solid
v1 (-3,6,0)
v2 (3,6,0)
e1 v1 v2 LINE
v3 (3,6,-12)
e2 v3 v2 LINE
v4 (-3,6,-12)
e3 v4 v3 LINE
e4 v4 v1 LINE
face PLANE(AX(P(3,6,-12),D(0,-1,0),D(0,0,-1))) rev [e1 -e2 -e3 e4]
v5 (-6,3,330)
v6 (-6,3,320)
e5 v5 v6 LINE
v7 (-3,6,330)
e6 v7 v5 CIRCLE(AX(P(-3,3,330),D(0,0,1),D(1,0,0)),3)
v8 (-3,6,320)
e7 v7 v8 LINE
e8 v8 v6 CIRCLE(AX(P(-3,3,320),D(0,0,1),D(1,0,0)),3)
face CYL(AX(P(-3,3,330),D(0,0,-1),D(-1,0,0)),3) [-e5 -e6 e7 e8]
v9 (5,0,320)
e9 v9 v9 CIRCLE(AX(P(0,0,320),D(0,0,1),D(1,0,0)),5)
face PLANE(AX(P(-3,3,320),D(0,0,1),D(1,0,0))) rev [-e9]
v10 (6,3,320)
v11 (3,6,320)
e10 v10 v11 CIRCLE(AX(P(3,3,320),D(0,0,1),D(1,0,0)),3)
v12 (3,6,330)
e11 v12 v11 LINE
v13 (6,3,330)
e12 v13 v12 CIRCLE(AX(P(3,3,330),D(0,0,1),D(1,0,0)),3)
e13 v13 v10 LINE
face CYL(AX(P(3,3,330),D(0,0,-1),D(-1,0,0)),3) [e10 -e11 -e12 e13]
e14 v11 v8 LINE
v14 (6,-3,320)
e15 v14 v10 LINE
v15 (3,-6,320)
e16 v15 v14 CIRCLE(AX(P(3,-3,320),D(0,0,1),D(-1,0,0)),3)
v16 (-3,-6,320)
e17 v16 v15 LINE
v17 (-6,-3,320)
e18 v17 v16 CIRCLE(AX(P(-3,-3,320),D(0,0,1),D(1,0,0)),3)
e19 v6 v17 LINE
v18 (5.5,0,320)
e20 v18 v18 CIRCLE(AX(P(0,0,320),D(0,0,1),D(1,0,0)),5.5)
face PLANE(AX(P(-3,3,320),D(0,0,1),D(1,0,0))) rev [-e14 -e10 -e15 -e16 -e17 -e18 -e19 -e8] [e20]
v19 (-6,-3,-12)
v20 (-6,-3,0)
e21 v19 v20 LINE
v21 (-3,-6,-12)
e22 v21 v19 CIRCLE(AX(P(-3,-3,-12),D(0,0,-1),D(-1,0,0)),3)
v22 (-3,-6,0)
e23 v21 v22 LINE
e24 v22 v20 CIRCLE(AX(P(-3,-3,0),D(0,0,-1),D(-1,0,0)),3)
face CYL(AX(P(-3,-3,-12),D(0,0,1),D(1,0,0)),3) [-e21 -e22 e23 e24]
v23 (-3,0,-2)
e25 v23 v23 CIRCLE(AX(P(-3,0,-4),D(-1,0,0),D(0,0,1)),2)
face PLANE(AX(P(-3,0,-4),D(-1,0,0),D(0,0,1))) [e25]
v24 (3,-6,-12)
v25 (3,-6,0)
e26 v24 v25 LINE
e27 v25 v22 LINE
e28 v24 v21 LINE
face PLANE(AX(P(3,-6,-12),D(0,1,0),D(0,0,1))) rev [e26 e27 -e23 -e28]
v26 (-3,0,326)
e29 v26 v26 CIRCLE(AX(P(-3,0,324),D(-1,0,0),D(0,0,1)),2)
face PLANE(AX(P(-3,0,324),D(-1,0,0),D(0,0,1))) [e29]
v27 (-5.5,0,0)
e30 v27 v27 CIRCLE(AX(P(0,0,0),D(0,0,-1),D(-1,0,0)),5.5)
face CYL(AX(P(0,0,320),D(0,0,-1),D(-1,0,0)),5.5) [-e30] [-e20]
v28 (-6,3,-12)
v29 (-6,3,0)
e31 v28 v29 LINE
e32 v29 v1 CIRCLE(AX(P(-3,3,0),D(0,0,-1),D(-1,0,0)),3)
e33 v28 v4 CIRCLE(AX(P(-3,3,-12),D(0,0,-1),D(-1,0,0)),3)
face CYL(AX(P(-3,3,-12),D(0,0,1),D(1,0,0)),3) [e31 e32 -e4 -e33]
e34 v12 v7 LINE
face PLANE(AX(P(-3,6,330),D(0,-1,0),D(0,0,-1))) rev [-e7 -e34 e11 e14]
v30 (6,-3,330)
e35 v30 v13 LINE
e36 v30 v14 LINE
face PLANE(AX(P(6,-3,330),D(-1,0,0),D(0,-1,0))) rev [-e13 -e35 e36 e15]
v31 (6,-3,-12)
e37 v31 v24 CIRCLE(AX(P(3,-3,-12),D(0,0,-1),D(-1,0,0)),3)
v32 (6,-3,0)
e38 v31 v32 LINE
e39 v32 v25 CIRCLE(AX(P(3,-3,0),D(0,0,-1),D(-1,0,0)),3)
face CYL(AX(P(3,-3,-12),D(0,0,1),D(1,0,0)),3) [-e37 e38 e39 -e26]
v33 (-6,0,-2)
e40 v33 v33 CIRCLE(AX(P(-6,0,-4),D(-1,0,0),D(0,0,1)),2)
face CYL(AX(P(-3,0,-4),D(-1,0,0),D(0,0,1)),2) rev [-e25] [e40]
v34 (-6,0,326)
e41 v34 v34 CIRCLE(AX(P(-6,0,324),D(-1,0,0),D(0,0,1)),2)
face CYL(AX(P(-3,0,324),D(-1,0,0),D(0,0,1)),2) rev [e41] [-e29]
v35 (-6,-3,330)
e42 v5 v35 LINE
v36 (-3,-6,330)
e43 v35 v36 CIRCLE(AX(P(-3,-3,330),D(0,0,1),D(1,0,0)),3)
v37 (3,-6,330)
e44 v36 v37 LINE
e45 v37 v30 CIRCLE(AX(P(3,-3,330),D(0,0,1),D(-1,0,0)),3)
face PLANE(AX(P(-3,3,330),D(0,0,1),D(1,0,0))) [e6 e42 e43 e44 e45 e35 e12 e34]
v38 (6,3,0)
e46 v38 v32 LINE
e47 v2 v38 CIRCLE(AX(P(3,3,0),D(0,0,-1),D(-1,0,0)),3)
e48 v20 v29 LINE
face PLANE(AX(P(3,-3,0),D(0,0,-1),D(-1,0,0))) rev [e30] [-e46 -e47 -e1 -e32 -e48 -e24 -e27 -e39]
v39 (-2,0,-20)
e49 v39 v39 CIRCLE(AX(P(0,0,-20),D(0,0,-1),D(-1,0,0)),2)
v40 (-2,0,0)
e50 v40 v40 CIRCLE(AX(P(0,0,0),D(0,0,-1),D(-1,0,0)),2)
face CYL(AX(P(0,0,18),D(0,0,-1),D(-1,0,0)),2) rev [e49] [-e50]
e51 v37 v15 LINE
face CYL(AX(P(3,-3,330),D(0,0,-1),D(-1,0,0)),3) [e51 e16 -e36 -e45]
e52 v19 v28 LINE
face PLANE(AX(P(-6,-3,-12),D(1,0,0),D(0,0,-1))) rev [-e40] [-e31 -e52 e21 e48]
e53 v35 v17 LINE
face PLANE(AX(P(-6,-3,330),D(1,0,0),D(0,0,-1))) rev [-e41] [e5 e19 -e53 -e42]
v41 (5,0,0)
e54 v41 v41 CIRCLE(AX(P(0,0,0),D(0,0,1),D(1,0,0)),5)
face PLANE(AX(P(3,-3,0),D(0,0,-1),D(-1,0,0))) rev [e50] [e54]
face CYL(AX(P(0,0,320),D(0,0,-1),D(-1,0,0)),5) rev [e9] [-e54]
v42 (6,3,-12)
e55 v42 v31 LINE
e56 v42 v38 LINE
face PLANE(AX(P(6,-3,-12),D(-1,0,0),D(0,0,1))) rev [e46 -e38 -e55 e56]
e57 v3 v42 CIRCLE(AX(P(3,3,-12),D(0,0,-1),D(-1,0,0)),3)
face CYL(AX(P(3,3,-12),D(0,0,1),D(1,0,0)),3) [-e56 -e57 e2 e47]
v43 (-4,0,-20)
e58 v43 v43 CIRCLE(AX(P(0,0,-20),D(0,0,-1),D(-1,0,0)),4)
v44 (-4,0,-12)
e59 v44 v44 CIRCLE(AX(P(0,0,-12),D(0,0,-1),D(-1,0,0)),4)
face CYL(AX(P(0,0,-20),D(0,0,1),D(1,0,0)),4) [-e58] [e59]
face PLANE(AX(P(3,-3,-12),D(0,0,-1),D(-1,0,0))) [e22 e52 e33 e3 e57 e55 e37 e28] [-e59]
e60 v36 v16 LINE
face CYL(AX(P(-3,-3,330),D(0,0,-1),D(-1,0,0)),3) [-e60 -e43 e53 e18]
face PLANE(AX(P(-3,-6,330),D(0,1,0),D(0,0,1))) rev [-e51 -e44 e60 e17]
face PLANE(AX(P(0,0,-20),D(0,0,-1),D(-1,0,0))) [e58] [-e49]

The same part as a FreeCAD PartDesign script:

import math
import FreeCAD as App
import Part
import Sketcher

V = App.Vector
Q = App.Units.Quantity

doc = App.newDocument("Part")
body = doc.addObject("PartDesign::Body", "Body")

# Sketch on XY plane
sketch1 = body.newObject("Sketcher::SketchObject", "Sketch")
sketch1.AttachmentSupport = (doc.getObject("XY_Plane"), [""])
sketch1.MapMode = "FlatFace"
sketch1.addGeometry([
    Part.Circle(V(0, 0, 0), V(0, 0, 1), 5.5),
    Part.Circle(V(0, 0, 0), V(0, 0, 1), 5),
], False)
sketch1.addConstraint([
    Sketcher.Constraint("Coincident", 0, 3, -1, 1),
    Sketcher.Constraint("Coincident", 1, 3, -1, 1),
    Sketcher.Constraint("Diameter", 0, Q("11 mm")),
    Sketcher.Constraint("Diameter", 1, Q("10 mm")),
])
pad1 = body.newObject("PartDesign::Pad", "Pad")
pad1.Profile = sketch1
pad1.Length = 320

# Sketch on XY plane
sketch2 = body.newObject("Sketcher::SketchObject", "Sketch001")
sketch2.AttachmentSupport = (doc.getObject("XY_Plane"), [""])
sketch2.MapMode = "FlatFace"
sketch2.AttachmentOffset = App.Placement(V(0, 0, 320), App.Rotation())
sketch2.addGeometry([
    Part.LineSegment(V(-3, -6, 0), V(3, -6, 0)),  # 0
    Part.ArcOfCircle(Part.Circle(V(3, -3, 0), V(0, 0, 1), 3), math.radians(-90), math.radians(0)),  # 1
    Part.LineSegment(V(6, -3, 0), V(6, 3, 0)),  # 2
    Part.ArcOfCircle(Part.Circle(V(3, 3, 0), V(0, 0, 1), 3), math.radians(0), math.radians(90)),  # 3
    Part.LineSegment(V(3, 6, 0), V(-3, 6, 0)),  # 4
    Part.ArcOfCircle(Part.Circle(V(-3, 3, 0), V(0, 0, 1), 3), math.radians(90), math.radians(180)),  # 5
    Part.LineSegment(V(-6, 3, 0), V(-6, -3, 0)),  # 6
    Part.ArcOfCircle(Part.Circle(V(-3, -3, 0), V(0, 0, 1), 3), math.radians(180), math.radians(270)),  # 7
], False)
sketch2.addConstraint([
    Sketcher.Constraint("Tangent", 0, 2, 1, 1),
    Sketcher.Constraint("Tangent", 1, 2, 2, 1),
    Sketcher.Constraint("Tangent", 2, 2, 3, 1),
    Sketcher.Constraint("Tangent", 3, 2, 4, 1),
    Sketcher.Constraint("Tangent", 4, 2, 5, 1),
    Sketcher.Constraint("Tangent", 5, 2, 6, 1),
    Sketcher.Constraint("Tangent", 6, 2, 7, 1),
    Sketcher.Constraint("Tangent", 7, 2, 0, 1),
    Sketcher.Constraint("Horizontal", 0),
    Sketcher.Constraint("Vertical", 2),
    Sketcher.Constraint("Horizontal", 4),
    Sketcher.Constraint("Vertical", 6),
    Sketcher.Constraint("Equal", 1, 3),
    Sketcher.Constraint("Equal", 3, 5),
    Sketcher.Constraint("Equal", 5, 7),
    Sketcher.Constraint("Symmetric", 1, 3, 5, 3, -1, 1),
    Sketcher.Constraint("Equal", 4, 2),
    Sketcher.Constraint("Radius", 1, Q("3 mm")),
    Sketcher.Constraint("DistanceX", 0, 1, 0, 2, Q("6 mm")),
])
pad2 = body.newObject("PartDesign::Pad", "Pad001")
pad2.Profile = sketch2
pad2.Length = 10

# Sketch on XY plane
sketch3 = body.newObject("Sketcher::SketchObject", "Sketch002")
sketch3.AttachmentSupport = (doc.getObject("XY_Plane"), [""])
sketch3.MapMode = "FlatFace"
sketch3.addGeometry([
    Part.LineSegment(V(3, -6, 0), V(-3, -6, 0)),  # 0
    Part.ArcOfCircle(Part.Circle(V(-3, -3, 0), V(0, 0, 1), 3), math.radians(180), math.radians(270)),  # 1
    Part.LineSegment(V(-6, -3, 0), V(-6, 3, 0)),  # 2
    Part.ArcOfCircle(Part.Circle(V(-3, 3, 0), V(0, 0, 1), 3), math.radians(90), math.radians(180)),  # 3
    Part.LineSegment(V(-3, 6, 0), V(3, 6, 0)),  # 4
    Part.ArcOfCircle(Part.Circle(V(3, 3, 0), V(0, 0, 1), 3), math.radians(0), math.radians(90)),  # 5
    Part.LineSegment(V(6, 3, 0), V(6, -3, 0)),  # 6
    Part.ArcOfCircle(Part.Circle(V(3, -3, 0), V(0, 0, 1), 3), math.radians(-90), math.radians(0)),  # 7
], False)
sketch3.addConstraint([
    Sketcher.Constraint("Tangent", 0, 2, 1, 2),
    Sketcher.Constraint("Tangent", 1, 1, 2, 1),
    Sketcher.Constraint("Tangent", 2, 2, 3, 2),
    Sketcher.Constraint("Tangent", 3, 1, 4, 1),
    Sketcher.Constraint("Tangent", 4, 2, 5, 2),
    Sketcher.Constraint("Tangent", 5, 1, 6, 1),
    Sketcher.Constraint("Tangent", 6, 2, 7, 2),
    Sketcher.Constraint("Tangent", 7, 1, 0, 1),
    Sketcher.Constraint("Horizontal", 0),
    Sketcher.Constraint("Vertical", 2),
    Sketcher.Constraint("Horizontal", 4),
    Sketcher.Constraint("Vertical", 6),
    Sketcher.Constraint("Equal", 1, 3),
    Sketcher.Constraint("Equal", 3, 5),
    Sketcher.Constraint("Equal", 5, 7),
    Sketcher.Constraint("Symmetric", 1, 3, 5, 3, -1, 1),
    Sketcher.Constraint("Equal", 4, 2),
    Sketcher.Constraint("Radius", 1, Q("3 mm")),
    Sketcher.Constraint("DistanceX", 0, 2, 0, 1, Q("6 mm")),
])
pad3 = body.newObject("PartDesign::Pad", "Pad002")
pad3.Profile = sketch3
pad3.Length = 12
pad3.Reversed = True

# Sketch on XY plane
sketch4 = body.newObject("Sketcher::SketchObject", "Sketch003")
sketch4.AttachmentSupport = (doc.getObject("XY_Plane"), [""])
sketch4.MapMode = "FlatFace"
sketch4.AttachmentOffset = App.Placement(V(0, 0, -12), App.Rotation())
sketch4.addGeometry(Part.Circle(V(0, 0, 0), V(0, 0, 1), 4), False)
sketch4.addConstraint([
    Sketcher.Constraint("Coincident", 0, 3, -1, 1),
    Sketcher.Constraint("Diameter", 0, Q("8 mm")),
])
pad4 = body.newObject("PartDesign::Pad", "Pad003")
pad4.Profile = sketch4
pad4.Length = 8
pad4.Reversed = True

# Sketch on XY plane
sketch5 = body.newObject("Sketcher::SketchObject", "Sketch004")
sketch5.AttachmentSupport = (doc.getObject("XY_Plane"), [""])
sketch5.MapMode = "FlatFace"
sketch5.AttachmentOffset = App.Placement(V(0, 0, -20), App.Rotation())
sketch5.addGeometry(Part.Circle(V(0, 0, 0), V(0, 0, 1), 2), False)
sketch5.addConstraint([
    Sketcher.Constraint("Coincident", 0, 3, -1, 1),
    Sketcher.Constraint("Diameter", 0, Q("4 mm")),
])
pocket1 = body.newObject("PartDesign::Pocket", "Pocket")
pocket1.Profile = sketch5
pocket1.Length = 38
pocket1.Reversed = True

# Sketch on YZ plane
sketch6 = body.newObject("Sketcher::SketchObject", "Sketch005")
sketch6.AttachmentSupport = (doc.getObject("YZ_Plane"), [""])
sketch6.MapMode = "FlatFace"
sketch6.AttachmentOffset = App.Placement(V(0, 0, -6), App.Rotation())
sketch6.addGeometry([
    Part.Circle(V(0, -4, 0), V(0, 0, 1), 2),
    Part.Circle(V(0, 324, 0), V(0, 0, 1), 2),
], False)
sketch6.addConstraint([
    Sketcher.Constraint("Equal", 0, 1),
    Sketcher.Constraint("PointOnObject", 0, 3, -2),
    Sketcher.Constraint("PointOnObject", 1, 3, -2),
    Sketcher.Constraint("Diameter", 0, Q("4 mm")),
    Sketcher.Constraint("DistanceY", 0, 3, -1, 1, Q("4 mm")),
    Sketcher.Constraint("DistanceY", -1, 1, 1, 3, Q("324 mm")),
])
pocket2 = body.newObject("PartDesign::Pocket", "Pocket001")
pocket2.Profile = sketch6
pocket2.Length = 3
pocket2.Reversed = True

doc.recompute()
